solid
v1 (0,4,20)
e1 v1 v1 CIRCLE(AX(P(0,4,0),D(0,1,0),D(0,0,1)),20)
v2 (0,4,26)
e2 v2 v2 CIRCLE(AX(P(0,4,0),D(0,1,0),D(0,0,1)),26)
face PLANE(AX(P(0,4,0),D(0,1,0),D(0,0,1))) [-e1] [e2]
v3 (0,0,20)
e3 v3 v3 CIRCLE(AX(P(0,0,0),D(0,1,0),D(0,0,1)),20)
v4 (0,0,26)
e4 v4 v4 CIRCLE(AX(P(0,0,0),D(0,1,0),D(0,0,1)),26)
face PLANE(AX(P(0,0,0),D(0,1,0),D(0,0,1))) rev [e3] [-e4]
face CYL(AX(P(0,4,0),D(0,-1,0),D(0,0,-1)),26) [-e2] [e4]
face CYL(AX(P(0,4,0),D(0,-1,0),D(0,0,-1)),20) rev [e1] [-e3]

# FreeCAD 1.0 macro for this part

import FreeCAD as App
import Part
import Sketcher
Q = App.Units.Quantity

doc = App.newDocument("Part")
body = doc.addObject("PartDesign::Body", "Body")

sketch1 = doc.addObject("Sketcher::SketchObject", "Sketch")
body.addObject(sketch1)
sketch1.AttachmentSupport = (doc.XZ_Plane, [""])
sketch1.MapMode = "FlatFace"
sketch1.addGeometry([
    Part.Circle(App.Vector(0, 0, 0), App.Vector(0, 0, 1), 26),
    Part.Circle(App.Vector(0, 0, 0), App.Vector(0, 0, 1), 20),
], False)
sketch1.addConstraint([
    Sketcher.Constraint("Coincident", 0, 3, -1, 1),
    Sketcher.Constraint("Coincident", 1, 3, -1, 1),
    Sketcher.Constraint("Diameter", 0, Q("52 mm")),
    Sketcher.Constraint("Diameter", 1, Q("40 mm")),
])
pad1 = doc.addObject("PartDesign::Pad", "Pad")
body.addObject(pad1)
pad1.Profile = sketch1
pad1.Length = 4
pad1.Reversed = True

doc.recompute()
